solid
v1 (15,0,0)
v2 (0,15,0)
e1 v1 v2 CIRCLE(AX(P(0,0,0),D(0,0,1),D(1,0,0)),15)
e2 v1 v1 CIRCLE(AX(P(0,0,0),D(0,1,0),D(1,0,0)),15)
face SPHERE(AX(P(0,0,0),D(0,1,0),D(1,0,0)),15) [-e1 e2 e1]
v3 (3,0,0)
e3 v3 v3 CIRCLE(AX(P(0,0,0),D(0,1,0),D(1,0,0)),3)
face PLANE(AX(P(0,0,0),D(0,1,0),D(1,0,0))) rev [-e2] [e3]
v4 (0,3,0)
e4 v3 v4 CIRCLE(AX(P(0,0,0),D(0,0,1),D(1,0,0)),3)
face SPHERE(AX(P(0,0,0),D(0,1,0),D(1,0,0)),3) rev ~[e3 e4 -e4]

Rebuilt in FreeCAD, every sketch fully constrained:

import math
import FreeCAD as App
import Part
import Sketcher

V = App.Vector


def faces_at(feature, points):
    """Names of the faces that lie closest to the given points."""
    faces = feature.Shape.Faces
    near = lambda p: min(range(len(faces)), key=lambda i: faces[i].distToShape(Part.Vertex(*p))[0])
    return sorted({f"Face{near(p) + 1}" for p in points})

doc = App.newDocument("Part")
body = doc.addObject("PartDesign::Body", "Body")

sketch1 = body.newObject("Sketcher::SketchObject", "Sketch")
sketch1.AttachmentSupport = (doc.getObject("XY_Plane"), [""])
sketch1.MapMode = "FlatFace"
sketch1.addGeometry(Part.LineSegment(V(0, 15, 0), V(0, 0, 0)), False)
sketch1.addGeometry(Part.LineSegment(V(0, 0, 0), V(15, 0, 0)), False)
sketch1.addGeometry(Part.ArcOfCircle(Part.Circle(V(0, 0, 0), V(0, 0, 1), 15), math.radians(0), math.radians(90)), False)
sketch1.addConstraint(Sketcher.Constraint("Coincident", 0, 2, 1, 1))
sketch1.addConstraint(Sketcher.Constraint("Coincident", 1, 2, 2, 1))
sketch1.addConstraint(Sketcher.Constraint("Coincident", 2, 2, 0, 1))
sketch1.addConstraint(Sketcher.Constraint("Vertical", 0))
sketch1.addConstraint(Sketcher.Constraint("Horizontal", 1))
sketch1.addConstraint(Sketcher.Constraint("Coincident", 2, 3, -1, 1))
sketch1.addConstraint(Sketcher.Constraint("Coincident", 0, 2, -1, 1))
sketch1.addConstraint(Sketcher.Constraint("Radius", 2, 15.0))
revolution = body.newObject("PartDesign::Revolution", "Revolution")
revolution.Profile = sketch1
revolution.ReferenceAxis = (sketch1, ["V_Axis"])
revolution.Angle = 360
doc.recompute()

thickness = body.newObject("PartDesign::Thickness", "Thickness")
thickness.Base = (revolution, faces_at(revolution, [(4.709, 0, 0)]))
thickness.Value = 12
thickness.Reversed = True
thickness.Join = "Intersection"

doc.recompute()
